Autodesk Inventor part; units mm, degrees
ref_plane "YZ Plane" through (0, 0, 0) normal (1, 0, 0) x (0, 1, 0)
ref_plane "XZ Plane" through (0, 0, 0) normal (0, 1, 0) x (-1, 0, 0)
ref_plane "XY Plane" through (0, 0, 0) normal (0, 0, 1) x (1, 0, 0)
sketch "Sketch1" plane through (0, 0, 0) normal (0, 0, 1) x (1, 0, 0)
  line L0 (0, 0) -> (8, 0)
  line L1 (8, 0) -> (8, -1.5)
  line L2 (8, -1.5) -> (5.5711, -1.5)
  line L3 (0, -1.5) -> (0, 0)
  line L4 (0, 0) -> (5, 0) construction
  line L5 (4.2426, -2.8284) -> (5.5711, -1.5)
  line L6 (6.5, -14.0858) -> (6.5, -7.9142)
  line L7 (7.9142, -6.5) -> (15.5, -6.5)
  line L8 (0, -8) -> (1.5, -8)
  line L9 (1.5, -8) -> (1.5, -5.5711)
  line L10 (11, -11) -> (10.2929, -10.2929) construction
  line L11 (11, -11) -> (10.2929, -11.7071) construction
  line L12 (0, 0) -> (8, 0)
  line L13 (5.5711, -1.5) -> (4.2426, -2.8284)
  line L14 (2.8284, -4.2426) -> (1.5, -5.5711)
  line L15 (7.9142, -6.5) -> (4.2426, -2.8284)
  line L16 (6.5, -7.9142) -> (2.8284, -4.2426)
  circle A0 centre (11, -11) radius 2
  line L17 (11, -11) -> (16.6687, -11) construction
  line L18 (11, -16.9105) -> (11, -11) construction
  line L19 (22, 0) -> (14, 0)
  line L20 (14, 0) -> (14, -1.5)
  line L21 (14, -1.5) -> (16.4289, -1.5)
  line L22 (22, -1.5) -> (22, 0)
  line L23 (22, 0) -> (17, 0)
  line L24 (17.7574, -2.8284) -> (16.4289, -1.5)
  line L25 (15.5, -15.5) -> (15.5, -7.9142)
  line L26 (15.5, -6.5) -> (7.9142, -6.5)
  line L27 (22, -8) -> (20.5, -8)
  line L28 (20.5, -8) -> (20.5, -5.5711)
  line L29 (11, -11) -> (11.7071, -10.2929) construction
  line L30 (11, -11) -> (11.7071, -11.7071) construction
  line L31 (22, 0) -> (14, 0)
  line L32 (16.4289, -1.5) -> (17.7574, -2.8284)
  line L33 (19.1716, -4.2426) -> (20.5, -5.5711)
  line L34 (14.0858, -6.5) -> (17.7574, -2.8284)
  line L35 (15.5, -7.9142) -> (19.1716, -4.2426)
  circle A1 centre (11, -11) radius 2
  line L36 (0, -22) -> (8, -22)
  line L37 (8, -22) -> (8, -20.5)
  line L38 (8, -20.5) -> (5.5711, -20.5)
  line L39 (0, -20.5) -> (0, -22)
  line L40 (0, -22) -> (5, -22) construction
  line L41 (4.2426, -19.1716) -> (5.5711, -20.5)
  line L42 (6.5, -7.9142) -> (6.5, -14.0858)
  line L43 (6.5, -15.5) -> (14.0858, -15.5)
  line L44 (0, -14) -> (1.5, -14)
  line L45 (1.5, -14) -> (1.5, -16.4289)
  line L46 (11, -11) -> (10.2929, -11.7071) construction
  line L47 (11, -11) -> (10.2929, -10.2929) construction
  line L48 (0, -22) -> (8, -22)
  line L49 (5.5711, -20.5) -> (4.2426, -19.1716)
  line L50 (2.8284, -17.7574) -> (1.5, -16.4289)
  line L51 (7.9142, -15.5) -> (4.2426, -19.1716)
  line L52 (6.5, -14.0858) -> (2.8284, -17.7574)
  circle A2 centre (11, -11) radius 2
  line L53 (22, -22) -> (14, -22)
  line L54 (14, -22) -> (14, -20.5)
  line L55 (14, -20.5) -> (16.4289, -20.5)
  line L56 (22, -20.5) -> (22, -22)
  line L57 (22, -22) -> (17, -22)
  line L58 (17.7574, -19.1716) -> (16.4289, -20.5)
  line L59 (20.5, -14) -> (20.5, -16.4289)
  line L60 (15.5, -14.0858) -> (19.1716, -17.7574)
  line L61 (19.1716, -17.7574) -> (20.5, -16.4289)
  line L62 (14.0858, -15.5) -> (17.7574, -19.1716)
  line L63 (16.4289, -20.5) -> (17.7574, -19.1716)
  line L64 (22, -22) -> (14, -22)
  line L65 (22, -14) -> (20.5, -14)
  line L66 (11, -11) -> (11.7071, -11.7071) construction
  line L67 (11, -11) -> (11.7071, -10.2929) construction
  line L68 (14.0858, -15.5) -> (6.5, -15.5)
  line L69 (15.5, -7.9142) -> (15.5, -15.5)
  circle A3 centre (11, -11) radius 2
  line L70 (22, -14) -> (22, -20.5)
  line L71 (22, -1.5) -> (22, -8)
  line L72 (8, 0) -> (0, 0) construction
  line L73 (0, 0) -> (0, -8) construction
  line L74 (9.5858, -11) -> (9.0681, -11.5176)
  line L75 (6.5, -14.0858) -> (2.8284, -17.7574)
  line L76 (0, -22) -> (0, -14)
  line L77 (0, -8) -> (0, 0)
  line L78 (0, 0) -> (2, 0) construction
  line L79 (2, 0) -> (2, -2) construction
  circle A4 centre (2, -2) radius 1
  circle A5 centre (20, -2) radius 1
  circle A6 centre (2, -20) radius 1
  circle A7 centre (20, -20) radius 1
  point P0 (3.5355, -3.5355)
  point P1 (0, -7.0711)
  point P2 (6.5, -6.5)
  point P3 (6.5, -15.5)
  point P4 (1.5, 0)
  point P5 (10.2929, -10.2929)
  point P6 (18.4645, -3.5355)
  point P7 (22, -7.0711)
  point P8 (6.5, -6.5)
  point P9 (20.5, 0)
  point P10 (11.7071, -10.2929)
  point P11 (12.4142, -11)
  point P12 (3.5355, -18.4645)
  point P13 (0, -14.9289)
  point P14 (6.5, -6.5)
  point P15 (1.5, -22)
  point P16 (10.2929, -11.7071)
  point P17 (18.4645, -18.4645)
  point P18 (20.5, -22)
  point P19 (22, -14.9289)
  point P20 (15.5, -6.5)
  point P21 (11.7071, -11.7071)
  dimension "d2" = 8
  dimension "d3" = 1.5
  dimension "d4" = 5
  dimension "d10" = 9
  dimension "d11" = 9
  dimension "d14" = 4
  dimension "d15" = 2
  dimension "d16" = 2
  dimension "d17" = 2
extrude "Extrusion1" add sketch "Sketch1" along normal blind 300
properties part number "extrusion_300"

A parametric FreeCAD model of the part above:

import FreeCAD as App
import Part
import Sketcher

V = App.Vector
Q = App.Units.Quantity

doc = App.newDocument("Part")
body = doc.addObject("PartDesign::Body", "Body")

# Sketch on XY plane
sketch1 = body.newObject("Sketcher::SketchObject", "Sketch")
sketch1.AttachmentSupport = (doc.getObject("XY_Plane"), [""])
sketch1.MapMode = "FlatFace"
sketch1.addGeometry(Part.LineSegment(V(8, 0, 0), V(0, 0, 0)), False)
sketch1.addGeometry(Part.LineSegment(V(0, 0, 0), V(0, -8, 0)), False)
sketch1.addGeometry(Part.LineSegment(V(0, -8, 0), V(1.5, -8, 0)), False)
sketch1.addGeometry(Part.LineSegment(V(1.5, -8, 0), V(1.5, -5.6, 0)), False)
sketch1.addGeometry(Part.LineSegment(V(1.5, -5.6, 0), V(2.8, -4.2, 0)), False)
sketch1.addGeometry(Part.LineSegment(V(2.8, -4.2, 0), V(6.5, -7.9, 0)), False)
sketch1.addGeometry(Part.LineSegment(V(6.5, -7.9, 0), V(6.5, -14.1, 0)), False)
sketch1.addGeometry(Part.LineSegment(V(6.5, -14.1, 0), V(2.8, -17.8, 0)), False)
sketch1.addGeometry(Part.LineSegment(V(2.8, -17.8, 0), V(1.5, -16.4, 0)), False)
sketch1.addGeometry(Part.LineSegment(V(1.5, -16.4, 0), V(1.5, -14, 0)), False)
sketch1.addGeometry(Part.LineSegment(V(1.5, -14, 0), V(0, -14, 0)), False)
sketch1.addGeometry(Part.LineSegment(V(0, -14, 0), V(0, -22, 0)), False)
sketch1.addGeometry(Part.LineSegment(V(0, -22, 0), V(8, -22, 0)), False)
sketch1.addGeometry(Part.LineSegment(V(8, -22, 0), V(8, -20.5, 0)), False)
sketch1.addGeometry(Part.LineSegment(V(8, -20.5, 0), V(5.6, -20.5, 0)), False)
sketch1.addGeometry(Part.LineSegment(V(5.6, -20.5, 0), V(4.2, -19.2, 0)), False)
sketch1.addGeometry(Part.LineSegment(V(4.2, -19.2, 0), V(7.9, -15.5, 0)), False)
sketch1.addGeometry(Part.LineSegment(V(7.9, -15.5, 0), V(14.1, -15.5, 0)), False)
sketch1.addGeometry(Part.LineSegment(V(14.1, -15.5, 0), V(17.8, -19.2, 0)), False)
sketch1.addGeometry(Part.LineSegment(V(17.8, -19.2, 0), V(16.4, -20.5, 0)), False)
sketch1.addGeometry(Part.LineSegment(V(16.4, -20.5, 0), V(14, -20.5, 0)), False)
sketch1.addGeometry(Part.LineSegment(V(14, -20.5, 0), V(14, -22, 0)), False)
sketch1.addGeometry(Part.LineSegment(V(14, -22, 0), V(22, -22, 0)), False)
sketch1.addGeometry(Part.LineSegment(V(22, -22, 0), V(22, -14, 0)), False)
sketch1.addGeometry(Part.LineSegment(V(22, -14, 0), V(20.5, -14, 0)), False)
sketch1.addGeometry(Part.LineSegment(V(20.5, -14, 0), V(20.5, -16.4, 0)), False)
sketch1.addGeometry(Part.LineSegment(V(20.5, -16.4, 0), V(19.2, -17.8, 0)), False)
sketch1.addGeometry(Part.LineSegment(V(19.2, -17.8, 0), V(15.5, -14.1, 0)), False)
sketch1.addGeometry(Part.LineSegment(V(15.5, -14.1, 0), V(15.5, -7.9, 0)), False)
sketch1.addGeometry(Part.LineSegment(V(15.5, -7.9, 0), V(19.2, -4.2, 0)), False)
sketch1.addGeometry(Part.LineSegment(V(19.2, -4.2, 0), V(20.5, -5.6, 0)), False)
sketch1.addGeometry(Part.LineSegment(V(20.5, -5.6, 0), V(20.5, -8, 0)), False)
sketch1.addGeometry(Part.LineSegment(V(20.5, -8, 0), V(22, -8, 0)), False)
sketch1.addGeometry(Part.LineSegment(V(22, -8, 0), V(22, 0, 0)), False)
sketch1.addGeometry(Part.LineSegment(V(22, 0, 0), V(14, 0, 0)), False)
sketch1.addGeometry(Part.LineSegment(V(14, 0, 0), V(14, -1.5, 0)), False)
sketch1.addGeometry(Part.LineSegment(V(14, -1.5, 0), V(16.4, -1.5, 0)), False)
sketch1.addGeometry(Part.LineSegment(V(16.4, -1.5, 0), V(17.8, -2.8, 0)), False)
sketch1.addGeometry(Part.LineSegment(V(17.8, -2.8, 0), V(14.1, -6.5, 0)), False)
sketch1.addGeometry(Part.LineSegment(V(14.1, -6.5, 0), V(7.9, -6.5, 0)), False)
sketch1.addGeometry(Part.LineSegment(V(7.9, -6.5, 0), V(4.2, -2.8, 0)), False)
sketch1.addGeometry(Part.LineSegment(V(4.2, -2.8, 0), V(5.6, -1.5, 0)), False)
sketch1.addGeometry(Part.LineSegment(V(5.6, -1.5, 0), V(8, -1.5, 0)), False)
sketch1.addGeometry(Part.LineSegment(V(8, -1.5, 0), V(8, 0, 0)), False)
sketch1.addGeometry(Part.Circle(V(2, -20, 0), V(0, 0, 1), 1), False)
sketch1.addGeometry(Part.Circle(V(20, -20, 0), V(0, 0, 1), 1), False)
sketch1.addGeometry(Part.Circle(V(2, -2, 0), V(0, 0, 1), 1), False)
sketch1.addGeometry(Part.Circle(V(11, -11, 0), V(0, 0, 1), 2), False)
sketch1.addGeometry(Part.Circle(V(20, -2, 0), V(0, 0, 1), 1), False)
sketch1.addConstraint(Sketcher.Constraint("Coincident", 0, 2, 1, 1))
sketch1.addConstraint(Sketcher.Constraint("Coincident", 1, 2, 2, 1))
sketch1.addConstraint(Sketcher.Constraint("Coincident", 2, 2, 3, 1))
sketch1.addConstraint(Sketcher.Constraint("Coincident", 3, 2, 4, 1))
sketch1.addConstraint(Sketcher.Constraint("Coincident", 4, 2, 5, 1))
sketch1.addConstraint(Sketcher.Constraint("Coincident", 5, 2, 6, 1))
sketch1.addConstraint(Sketcher.Constraint("Coincident", 6, 2, 7, 1))
sketch1.addConstraint(Sketcher.Constraint("Coincident", 7, 2, 8, 1))
sketch1.addConstraint(Sketcher.Constraint("Coincident", 8, 2, 9, 1))
sketch1.addConstraint(Sketcher.Constraint("Coincident", 9, 2, 10, 1))
sketch1.addConstraint(Sketcher.Constraint("Coincident", 10, 2, 11, 1))
sketch1.addConstraint(Sketcher.Constraint("Coincident", 11, 2, 12, 1))
sketch1.addConstraint(Sketcher.Constraint("Coincident", 12, 2, 13, 1))
sketch1.addConstraint(Sketcher.Constraint("Coincident", 13, 2, 14, 1))
sketch1.addConstraint(Sketcher.Constraint("Coincident", 14, 2, 15, 1))
sketch1.addConstraint(Sketcher.Constraint("Coincident", 15, 2, 16, 1))
sketch1.addConstraint(Sketcher.Constraint("Coincident", 16, 2, 17, 1))
sketch1.addConstraint(Sketcher.Constraint("Coincident", 17, 2, 18, 1))
sketch1.addConstraint(Sketcher.Constraint("Coincident", 18, 2, 19, 1))
sketch1.addConstraint(Sketcher.Constraint("Coincident", 19, 2, 20, 1))
sketch1.addConstraint(Sketcher.Constraint("Coincident", 20, 2, 21, 1))
sketch1.addConstraint(Sketcher.Constraint("Coincident", 21, 2, 22, 1))
sketch1.addConstraint(Sketcher.Constraint("Coincident", 22, 2, 23, 1))
sketch1.addConstraint(Sketcher.Constraint("Coincident", 23, 2, 24, 1))
sketch1.addConstraint(Sketcher.Constraint("Coincident", 24, 2, 25, 1))
sketch1.addConstraint(Sketcher.Constraint("Coincident", 25, 2, 26, 1))
sketch1.addConstraint(Sketcher.Constraint("Coincident", 26, 2, 27, 1))
sketch1.addConstraint(Sketcher.Constraint("Coincident", 27, 2, 28, 1))
sketch1.addConstraint(Sketcher.Constraint("Coincident", 28, 2, 29, 1))
sketch1.addConstraint(Sketcher.Constraint("Coincident", 29, 2, 30, 1))
sketch1.addConstraint(Sketcher.Constraint("Coincident", 30, 2, 31, 1))
sketch1.addConstraint(Sketcher.Constraint("Coincident", 31, 2, 32, 1))
sketch1.addConstraint(Sketcher.Constraint("Coincident", 32, 2, 33, 1))
sketch1.addConstraint(Sketcher.Constraint("Coincident", 33, 2, 34, 1))
sketch1.addConstraint(Sketcher.Constraint("Coincident", 34, 2, 35, 1))
sketch1.addConstraint(Sketcher.Constraint("Coincident", 35, 2, 36, 1))
sketch1.addConstraint(Sketcher.Constraint("Coincident", 36, 2, 37, 1))
sketch1.addConstraint(Sketcher.Constraint("Coincident", 37, 2, 38, 1))
sketch1.addConstraint(Sketcher.Constraint("Coincident", 38, 2, 39, 1))
sketch1.addConstraint(Sketcher.Constraint("Coincident", 39, 2, 40, 1))
sketch1.addConstraint(Sketcher.Constraint("Coincident", 40, 2, 41, 1))
sketch1.addConstraint(Sketcher.Constraint("Coincident", 41, 2, 42, 1))
sketch1.addConstraint(Sketcher.Constraint("Coincident", 42, 2, 43, 1))
sketch1.addConstraint(Sketcher.Constraint("Coincident", 43, 2, 0, 1))
sketch1.addConstraint(Sketcher.Constraint("Horizontal", 0))
sketch1.addConstraint(Sketcher.Constraint("Vertical", 1))
sketch1.addConstraint(Sketcher.Constraint("Horizontal", 2))
sketch1.addConstraint(Sketcher.Constraint("Vertical", 3))
sketch1.addConstraint(Sketcher.Constraint("Vertical", 6))
sketch1.addConstraint(Sketcher.Constraint("Vertical", 9))
sketch1.addConstraint(Sketcher.Constraint("Horizontal", 10))
sketch1.addConstraint(Sketcher.Constraint("Vertical", 11))
sketch1.addConstraint(Sketcher.Constraint("Horizontal", 12))
sketch1.addConstraint(Sketcher.Constraint("Vertical", 13))
sketch1.addConstraint(Sketcher.Constraint("Horizontal", 14))
sketch1.addConstraint(Sketcher.Constraint("Horizontal", 17))
sketch1.addConstraint(Sketcher.Constraint("Horizontal", 20))
sketch1.addConstraint(Sketcher.Constraint("Vertical", 21))
sketch1.addConstraint(Sketcher.Constraint("Horizontal", 22))
sketch1.addConstraint(Sketcher.Constraint("Vertical", 23))
sketch1.addConstraint(Sketcher.Constraint("Horizontal", 24))
sketch1.addConstraint(Sketcher.Constraint("Vertical", 25))
sketch1.addConstraint(Sketcher.Constraint("Vertical", 28))
sketch1.addConstraint(Sketcher.Constraint("Vertical", 31))
sketch1.addConstraint(Sketcher.Constraint("Horizontal", 32))
sketch1.addConstraint(Sketcher.Constraint("Vertical", 33))
sketch1.addConstraint(Sketcher.Constraint("Horizontal", 34))
sketch1.addConstraint(Sketcher.Constraint("Vertical", 35))
sketch1.addConstraint(Sketcher.Constraint("Horizontal", 36))
sketch1.addConstraint(Sketcher.Constraint("Horizontal", 39))
sketch1.addConstraint(Sketcher.Constraint("Horizontal", 42))
sketch1.addConstraint(Sketcher.Constraint("Vertical", 43))
sketch1.addConstraint(Sketcher.Constraint("Coincident", 0, 2, -1, 1))
sketch1.addConstraint(Sketcher.Constraint("Equal", 44, 45))
sketch1.addConstraint(Sketcher.Constraint("Equal", 45, 46))
sketch1.addConstraint(Sketcher.Constraint("Equal", 46, 48))
sketch1.addConstraint(Sketcher.Constraint("PointOnObject", 10, 2, -2))
sketch1.addConstraint(Sketcher.Constraint("PointOnObject", 33, 2, -1))
sketch1.addConstraint(Sketcher.Constraint("Perpendicular", 4, 5))
sketch1.addConstraint(Sketcher.Constraint("Perpendicular", 5, 7))
sketch1.addConstraint(Sketcher.Constraint("Perpendicular", 7, 8))
sketch1.addConstraint(Sketcher.Constraint("Parallel", 8, 15))
sketch1.addConstraint(Sketcher.Constraint("Perpendicular", 15, 16))
sketch1.addConstraint(Sketcher.Constraint("Perpendicular", 16, 18))
sketch1.addConstraint(Sketcher.Constraint("Perpendicular", 18, 19))
sketch1.addConstraint(Sketcher.Constraint("Parallel", 19, 26))
sketch1.addConstraint(Sketcher.Constraint("Perpendicular", 26, 27))
sketch1.addConstraint(Sketcher.Constraint("Perpendicular", 27, 29))
sketch1.addConstraint(Sketcher.Constraint("Perpendicular", 29, 30))
sketch1.addConstraint(Sketcher.Constraint("Parallel", 30, 37))
sketch1.addConstraint(Sketcher.Constraint("Perpendicular", 37, 38))
sketch1.addConstraint(Sketcher.Constraint("Perpendicular", 38, 40))
sketch1.addConstraint(Sketcher.Constraint("Perpendicular", 40, 41))
sketch1.addConstraint(Sketcher.Constraint("Horizontal", 44, 3, 45, 3))
sketch1.addConstraint(Sketcher.Constraint("Horizontal", 46, 3, 48, 3))
sketch1.addConstraint(Sketcher.Constraint("Horizontal", 15, 2, 18, 2))
sketch1.addConstraint(Sketcher.Constraint("Horizontal", 14, 2, 19, 2))
sketch1.addConstraint(Sketcher.Constraint("Horizontal", 12, 2, 21, 2))
sketch1.addConstraint(Sketcher.Constraint("Horizontal", 10, 2, 23, 2))
sketch1.addConstraint(Sketcher.Constraint("Horizontal", 8, 2, 25, 2))
sketch1.addConstraint(Sketcher.Constraint("Horizontal", 7, 2, 26, 2))
sketch1.addConstraint(Sketcher.Constraint("Horizontal", 6, 2, 27, 2))
sketch1.addConstraint(Sketcher.Constraint("Horizontal", 5, 2, 28, 2))
sketch1.addConstraint(Sketcher.Constraint("Horizontal", 4, 2, 29, 2))
sketch1.addConstraint(Sketcher.Constraint("Horizontal", 3, 2, 30, 2))
sketch1.addConstraint(Sketcher.Constraint("Horizontal", 2, 2, 31, 2))
sketch1.addConstraint(Sketcher.Constraint("Horizontal", 37, 2, 40, 2))
sketch1.addConstraint(Sketcher.Constraint("Horizontal", 36, 2, 41, 2))
sketch1.addConstraint(Sketcher.Constraint("Vertical", 44, 3, 46, 3))
sketch1.addConstraint(Sketcher.Constraint("Vertical", 45, 3, 48, 3))
sketch1.addConstraint(Sketcher.Constraint("Vertical", 4, 2, 7, 2))
sketch1.addConstraint(Sketcher.Constraint("Vertical", 3, 2, 8, 2))
sketch1.addConstraint(Sketcher.Constraint("Vertical", 26, 2, 29, 2))
sketch1.addConstraint(Sketcher.Constraint("Vertical", 23, 2, 32, 2))
sketch1.addConstraint(Sketcher.Constraint("Vertical", 21, 2, 34, 2))
sketch1.addConstraint(Sketcher.Constraint("Vertical", 19, 2, 36, 2))
sketch1.addConstraint(Sketcher.Constraint("Vertical", 18, 2, 37, 2))
sketch1.addConstraint(Sketcher.Constraint("Vertical", 17, 2, 38, 2))
sketch1.addConstraint(Sketcher.Constraint("Vertical", 16, 2, 39, 2))
sketch1.addConstraint(Sketcher.Constraint("Vertical", 13, 2, 42, 2))
sketch1.addConstraint(Sketcher.Constraint("Equal", 14, 20))
sketch1.addConstraint(Sketcher.Constraint("Equal", 12, 22))
sketch1.addConstraint(Sketcher.Constraint("Equal", 10, 24))
sketch1.addConstraint(Sketcher.Constraint("Equal", 34, 1))
sketch1.addConstraint(Sketcher.Constraint("Equal", 42, 3))
sketch1.addConstraint(Sketcher.Constraint("Equal", 39, 6))
sketch1.addConstraint(Sketcher.Constraint("Equal", 3, 9))
sketch1.addConstraint(Sketcher.Constraint("Equal", 1, 11))
sketch1.addConstraint(Sketcher.Constraint("Equal", 32, 13))
sketch1.addConstraint(Sketcher.Constraint("Equal", 21, 35))
sketch1.addConstraint(Sketcher.Constraint("Equal", 8, 15))
sketch1.addConstraint(Sketcher.Constraint("Equal", 7, 16))
sketch1.addConstraint(Sketcher.Constraint("Diameter", 44, Q("2 mm")))
sketch1.addConstraint(Sketcher.Constraint("Diameter", 47, Q("4 mm")))
sketch1.addConstraint(Sketcher.Constraint("DistanceX", 0, 2, 0, 1, Q("8 mm")))
sketch1.addConstraint(Sketcher.Constraint("DistanceX", 2, 1, 2, 2, Q("1.5 mm")))
sketch1.addConstraint(Sketcher.Constraint("DistanceX", -1, 1, 44, 3, Q("2 mm")))
sketch1.addConstraint(Sketcher.Constraint("DistanceY", 46, 3, -1, 1, Q("2 mm")))
sketch1.addConstraint(Sketcher.Constraint("DistanceX", 44, 3, 47, 3, Q("9 mm")))
sketch1.addConstraint(Sketcher.Constraint("DistanceY", 44, 3, 47, 3, Q("9 mm")))
sketch1.addConstraint(Sketcher.Constraint("DistanceX", 47, 3, 45, 3, Q("9 mm")))
sketch1.addConstraint(Sketcher.Constraint("DistanceY", 47, 3, 46, 3, Q("9 mm")))
sketch1.addConstraint(Sketcher.Constraint("DistanceX", 2, 2, 5, 2, Q("5 mm")))
sketch1.addConstraint(Sketcher.Constraint("DistanceY", 11, 2, 44, 3, Q("2 mm")))
sketch1.addConstraint(Sketcher.Constraint("DistanceX", 14, 2, 14, 1, Q("2.429 mm")))
sketch1.addConstraint(Sketcher.Constraint("DistanceX", 17, 1, 17, 2, Q("6.1716 mm")))
pad1 = body.newObject("PartDesign::Pad", "Pad")
pad1.Profile = sketch1
pad1.Length = 300

doc.recompute()
